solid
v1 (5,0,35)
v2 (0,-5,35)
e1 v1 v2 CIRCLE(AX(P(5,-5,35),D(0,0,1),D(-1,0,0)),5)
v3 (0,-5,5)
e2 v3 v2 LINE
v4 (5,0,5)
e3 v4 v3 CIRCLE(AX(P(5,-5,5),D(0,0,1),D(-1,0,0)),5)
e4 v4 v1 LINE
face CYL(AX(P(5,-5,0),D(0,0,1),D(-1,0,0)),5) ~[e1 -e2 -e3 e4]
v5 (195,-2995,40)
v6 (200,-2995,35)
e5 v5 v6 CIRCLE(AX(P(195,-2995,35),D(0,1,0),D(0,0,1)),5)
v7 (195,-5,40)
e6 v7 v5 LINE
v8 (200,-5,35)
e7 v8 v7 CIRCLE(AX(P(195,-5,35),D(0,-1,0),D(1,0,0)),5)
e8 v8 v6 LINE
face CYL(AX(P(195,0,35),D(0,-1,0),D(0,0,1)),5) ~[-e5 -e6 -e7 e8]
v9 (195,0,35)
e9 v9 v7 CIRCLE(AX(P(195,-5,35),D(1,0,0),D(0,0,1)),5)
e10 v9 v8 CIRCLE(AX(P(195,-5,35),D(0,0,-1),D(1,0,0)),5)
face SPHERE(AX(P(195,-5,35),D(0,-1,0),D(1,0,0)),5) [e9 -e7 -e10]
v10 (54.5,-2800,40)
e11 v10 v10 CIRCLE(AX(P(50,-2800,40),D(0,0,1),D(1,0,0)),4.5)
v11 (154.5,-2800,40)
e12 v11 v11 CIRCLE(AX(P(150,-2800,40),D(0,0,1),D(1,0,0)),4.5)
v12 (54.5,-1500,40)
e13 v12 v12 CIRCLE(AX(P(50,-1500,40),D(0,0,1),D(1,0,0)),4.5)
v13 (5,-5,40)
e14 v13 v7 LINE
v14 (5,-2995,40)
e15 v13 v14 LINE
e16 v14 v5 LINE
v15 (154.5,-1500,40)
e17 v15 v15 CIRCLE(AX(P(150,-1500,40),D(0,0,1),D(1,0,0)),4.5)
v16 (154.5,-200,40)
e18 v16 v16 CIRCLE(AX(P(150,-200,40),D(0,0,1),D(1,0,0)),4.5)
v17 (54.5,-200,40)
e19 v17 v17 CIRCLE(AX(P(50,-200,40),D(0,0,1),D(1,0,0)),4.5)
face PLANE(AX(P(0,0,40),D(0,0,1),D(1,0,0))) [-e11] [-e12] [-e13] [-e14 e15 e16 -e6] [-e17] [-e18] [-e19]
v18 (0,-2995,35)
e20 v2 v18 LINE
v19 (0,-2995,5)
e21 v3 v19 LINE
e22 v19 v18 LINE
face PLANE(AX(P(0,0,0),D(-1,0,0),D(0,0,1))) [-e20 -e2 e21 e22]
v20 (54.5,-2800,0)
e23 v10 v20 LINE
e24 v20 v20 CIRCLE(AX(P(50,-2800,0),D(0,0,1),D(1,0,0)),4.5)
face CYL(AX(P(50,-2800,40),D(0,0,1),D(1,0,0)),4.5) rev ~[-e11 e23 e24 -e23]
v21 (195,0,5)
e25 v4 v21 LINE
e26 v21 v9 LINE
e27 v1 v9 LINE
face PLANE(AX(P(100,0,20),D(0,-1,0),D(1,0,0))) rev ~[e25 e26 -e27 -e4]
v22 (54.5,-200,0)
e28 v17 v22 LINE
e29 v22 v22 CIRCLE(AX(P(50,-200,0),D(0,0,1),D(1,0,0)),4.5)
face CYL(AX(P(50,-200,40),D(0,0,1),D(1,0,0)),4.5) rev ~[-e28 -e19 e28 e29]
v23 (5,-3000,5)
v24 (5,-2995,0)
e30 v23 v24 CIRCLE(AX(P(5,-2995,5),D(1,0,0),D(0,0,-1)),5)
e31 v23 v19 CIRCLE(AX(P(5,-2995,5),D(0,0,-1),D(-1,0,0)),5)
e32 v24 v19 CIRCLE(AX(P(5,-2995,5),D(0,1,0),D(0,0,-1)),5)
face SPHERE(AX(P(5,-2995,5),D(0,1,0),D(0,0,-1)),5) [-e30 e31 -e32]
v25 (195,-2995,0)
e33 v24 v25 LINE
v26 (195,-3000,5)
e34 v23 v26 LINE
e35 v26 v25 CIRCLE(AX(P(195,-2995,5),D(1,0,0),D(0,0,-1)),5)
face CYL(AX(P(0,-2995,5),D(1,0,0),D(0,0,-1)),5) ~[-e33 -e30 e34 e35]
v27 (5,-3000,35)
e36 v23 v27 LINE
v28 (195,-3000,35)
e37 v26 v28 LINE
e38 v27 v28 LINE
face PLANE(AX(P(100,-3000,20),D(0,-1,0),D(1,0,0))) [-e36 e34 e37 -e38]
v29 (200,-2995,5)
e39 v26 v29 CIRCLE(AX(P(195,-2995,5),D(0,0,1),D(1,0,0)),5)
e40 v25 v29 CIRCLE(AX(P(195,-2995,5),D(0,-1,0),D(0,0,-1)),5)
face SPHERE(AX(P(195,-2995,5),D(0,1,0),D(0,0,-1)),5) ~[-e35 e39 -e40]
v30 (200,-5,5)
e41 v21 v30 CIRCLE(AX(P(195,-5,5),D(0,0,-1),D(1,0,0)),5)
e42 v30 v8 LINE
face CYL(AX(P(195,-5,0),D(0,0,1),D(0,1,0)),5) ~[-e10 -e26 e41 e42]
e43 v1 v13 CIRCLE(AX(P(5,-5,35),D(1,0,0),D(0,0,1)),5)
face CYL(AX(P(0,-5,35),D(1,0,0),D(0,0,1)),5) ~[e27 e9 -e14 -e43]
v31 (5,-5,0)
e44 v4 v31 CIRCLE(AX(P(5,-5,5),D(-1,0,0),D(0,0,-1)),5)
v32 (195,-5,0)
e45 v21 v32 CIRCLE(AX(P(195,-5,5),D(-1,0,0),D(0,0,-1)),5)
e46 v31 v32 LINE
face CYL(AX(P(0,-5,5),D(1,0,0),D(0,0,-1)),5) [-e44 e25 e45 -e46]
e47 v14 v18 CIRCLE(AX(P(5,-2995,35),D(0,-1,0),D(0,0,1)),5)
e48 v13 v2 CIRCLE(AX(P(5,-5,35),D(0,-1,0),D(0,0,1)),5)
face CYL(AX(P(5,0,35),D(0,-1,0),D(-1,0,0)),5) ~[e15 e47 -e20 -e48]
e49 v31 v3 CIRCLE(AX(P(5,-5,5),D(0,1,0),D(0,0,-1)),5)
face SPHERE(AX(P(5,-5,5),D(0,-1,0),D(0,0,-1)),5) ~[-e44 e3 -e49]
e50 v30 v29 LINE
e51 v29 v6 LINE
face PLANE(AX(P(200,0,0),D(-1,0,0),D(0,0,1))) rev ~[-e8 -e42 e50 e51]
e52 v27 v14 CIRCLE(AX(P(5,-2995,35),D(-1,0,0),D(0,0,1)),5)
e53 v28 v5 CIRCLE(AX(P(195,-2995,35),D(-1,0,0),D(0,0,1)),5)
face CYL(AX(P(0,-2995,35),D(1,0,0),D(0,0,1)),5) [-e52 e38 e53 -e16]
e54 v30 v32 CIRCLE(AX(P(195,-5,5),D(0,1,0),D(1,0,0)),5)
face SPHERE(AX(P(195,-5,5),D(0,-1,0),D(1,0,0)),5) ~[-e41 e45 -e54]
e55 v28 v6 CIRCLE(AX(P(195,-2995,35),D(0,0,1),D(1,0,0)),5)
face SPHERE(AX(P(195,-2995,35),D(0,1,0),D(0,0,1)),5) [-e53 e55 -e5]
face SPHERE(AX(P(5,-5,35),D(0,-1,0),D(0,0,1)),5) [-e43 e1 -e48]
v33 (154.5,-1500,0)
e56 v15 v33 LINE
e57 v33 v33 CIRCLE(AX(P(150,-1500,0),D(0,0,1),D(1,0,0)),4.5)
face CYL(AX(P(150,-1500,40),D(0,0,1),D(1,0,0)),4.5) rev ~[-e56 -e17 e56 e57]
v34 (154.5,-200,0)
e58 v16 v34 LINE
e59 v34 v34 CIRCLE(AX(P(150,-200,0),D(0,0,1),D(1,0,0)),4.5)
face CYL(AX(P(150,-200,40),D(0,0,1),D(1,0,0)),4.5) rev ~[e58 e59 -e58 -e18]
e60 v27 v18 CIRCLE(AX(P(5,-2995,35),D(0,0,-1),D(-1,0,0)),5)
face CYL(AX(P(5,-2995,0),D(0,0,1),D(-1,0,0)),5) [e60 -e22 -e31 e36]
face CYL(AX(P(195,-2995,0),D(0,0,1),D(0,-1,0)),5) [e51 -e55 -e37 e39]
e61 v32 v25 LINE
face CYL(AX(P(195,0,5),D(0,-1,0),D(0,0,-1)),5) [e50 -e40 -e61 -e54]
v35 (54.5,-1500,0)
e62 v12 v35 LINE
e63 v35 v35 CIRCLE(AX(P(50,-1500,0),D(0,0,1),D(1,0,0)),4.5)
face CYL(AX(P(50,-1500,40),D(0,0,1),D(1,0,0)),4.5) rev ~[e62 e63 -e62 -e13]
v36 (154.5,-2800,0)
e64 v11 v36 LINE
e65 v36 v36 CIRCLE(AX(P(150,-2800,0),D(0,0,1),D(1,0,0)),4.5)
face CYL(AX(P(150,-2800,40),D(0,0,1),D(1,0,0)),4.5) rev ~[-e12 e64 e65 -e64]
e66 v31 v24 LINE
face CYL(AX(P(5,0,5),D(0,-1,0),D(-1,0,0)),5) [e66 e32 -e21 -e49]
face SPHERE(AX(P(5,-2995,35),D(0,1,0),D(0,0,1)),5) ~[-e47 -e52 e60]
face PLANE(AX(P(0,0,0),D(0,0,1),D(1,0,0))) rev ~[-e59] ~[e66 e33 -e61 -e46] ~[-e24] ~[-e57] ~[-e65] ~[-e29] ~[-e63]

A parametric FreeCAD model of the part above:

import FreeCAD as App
import Part
import Sketcher

V = App.Vector
Q = App.Units.Quantity


def edges_at(feature, points):
    """Names of the edges that pass closest to the given points."""
    edges = feature.Shape.Edges
    near = lambda p: min(range(len(edges)), key=lambda i: edges[i].distToShape(Part.Vertex(*p))[0])
    return sorted({f"Edge{near(p) + 1}" for p in points})


def add_polygon(sketch, points):
    """Adds a closed chain of lines whose ends are joined by coincident constraints."""
    first, n = sketch.GeometryCount, len(points)
    for a, b in zip(points, points[1:] + points[:1]):
        sketch.addGeometry(Part.LineSegment(App.Vector(*a, 0), App.Vector(*b, 0)), False)
    for i in range(n):
        sketch.addConstraint(Sketcher.Constraint("Coincident", first + i, 2, first + (i + 1) % n, 1))

doc = App.newDocument("Part")
body = doc.addObject("PartDesign::Body", "Body")

sketch1 = body.newObject("Sketcher::SketchObject", "Sketch")
sketch1.AttachmentSupport = (doc.getObject("XZ_Plane"), [""])
sketch1.MapMode = "FlatFace"
add_polygon(sketch1, [(0, 40), (0, 0), (200, 0), (200, 40)])
sketch1.addConstraint(Sketcher.Constraint("Vertical", 0))
sketch1.addConstraint(Sketcher.Constraint("Horizontal", 1))
sketch1.addConstraint(Sketcher.Constraint("Vertical", 2))
sketch1.addConstraint(Sketcher.Constraint("Horizontal", 3))
sketch1.addConstraint(Sketcher.Constraint("Coincident", 0, 2, -1, 1))
sketch1.addConstraint(Sketcher.Constraint("DistanceX", 1, 1, 1, 2, Q("200 mm")))
sketch1.addConstraint(Sketcher.Constraint("DistanceY", 0, 2, 0, 1, Q("40 mm")))
pad1 = body.newObject("PartDesign::Pad", "Pad")
pad1.Profile = sketch1
pad1.Length = 3000

sketch2 = body.newObject("Sketcher::SketchObject", "Sketch001")
sketch2.AttachmentSupport = (doc.getObject("XY_Plane"), [""])
sketch2.MapMode = "FlatFace"
sketch2.AttachmentOffset = App.Placement(V(0, 0, 40), App.Rotation())
sketch2.addGeometry(Part.Circle(V(50, -2800, 0), V(0, 0, 1), 4.5), False)
sketch2.addGeometry(Part.Circle(V(150, -2800, 0), V(0, 0, 1), 4.5), False)
sketch2.addGeometry(Part.Circle(V(50, -200, 0), V(0, 0, 1), 4.5), False)
sketch2.addGeometry(Part.Circle(V(150, -200, 0), V(0, 0, 1), 4.5), False)
sketch2.addGeometry(Part.Circle(V(50, -1500, 0), V(0, 0, 1), 4.5), False)
sketch2.addGeometry(Part.Circle(V(150, -1500, 0), V(0, 0, 1), 4.5), False)
sketch2.addConstraint(Sketcher.Constraint("Equal", 0, 1))
sketch2.addConstraint(Sketcher.Constraint("Equal", 1, 2))
sketch2.addConstraint(Sketcher.Constraint("Equal", 2, 3))
sketch2.addConstraint(Sketcher.Constraint("Equal", 3, 4))
sketch2.addConstraint(Sketcher.Constraint("Equal", 4, 5))
sketch2.addConstraint(Sketcher.Constraint("Horizontal", 0, 3, 1, 3))
sketch2.addConstraint(Sketcher.Constraint("Horizontal", 2, 3, 3, 3))
sketch2.addConstraint(Sketcher.Constraint("Horizontal", 4, 3, 5, 3))
sketch2.addConstraint(Sketcher.Constraint("Vertical", 0, 3, 2, 3))
sketch2.addConstraint(Sketcher.Constraint("Vertical", 1, 3, 3, 3))
sketch2.addConstraint(Sketcher.Constraint("Vertical", 2, 3, 4, 3))
sketch2.addConstraint(Sketcher.Constraint("Vertical", 3, 3, 5, 3))
sketch2.addConstraint(Sketcher.Constraint("Diameter", 0, Q("9 mm")))
sketch2.addConstraint(Sketcher.Constraint("DistanceX", -1, 1, 0, 3, Q("50 mm")))
sketch2.addConstraint(Sketcher.Constraint("DistanceY", 0, 3, -1, 1, Q("2800 mm")))
sketch2.addConstraint(Sketcher.Constraint("DistanceX", -1, 1, 1, 3, Q("150 mm")))
sketch2.addConstraint(Sketcher.Constraint("DistanceY", 2, 3, -1, 1, Q("200 mm")))
sketch2.addConstraint(Sketcher.Constraint("DistanceY", 4, 3, -1, 1, Q("1500 mm")))
pocket1 = body.newObject("PartDesign::Pocket", "Pocket")
pocket1.Profile = sketch2
pocket1.Type = "ThroughAll"
doc.recompute()

fillet = body.newObject("PartDesign::Fillet", "Fillet")
fillet.Base = (pocket1, edges_at(pocket1, [
    (0, -1500, 40),
    (0, -1500, 0),
    (200, -1500, 40),
    (200, -1500, 0),
    (100, -3000, 40),
    (100, -3000, 0),
    (0, -3000, 20),
    (200, -3000, 20),
    (200, 0, 20),
    (100, 0, 40),
    (100, 0, 0),
    (0, 0, 20),
]))
fillet.Radius = 5

doc.recompute()
